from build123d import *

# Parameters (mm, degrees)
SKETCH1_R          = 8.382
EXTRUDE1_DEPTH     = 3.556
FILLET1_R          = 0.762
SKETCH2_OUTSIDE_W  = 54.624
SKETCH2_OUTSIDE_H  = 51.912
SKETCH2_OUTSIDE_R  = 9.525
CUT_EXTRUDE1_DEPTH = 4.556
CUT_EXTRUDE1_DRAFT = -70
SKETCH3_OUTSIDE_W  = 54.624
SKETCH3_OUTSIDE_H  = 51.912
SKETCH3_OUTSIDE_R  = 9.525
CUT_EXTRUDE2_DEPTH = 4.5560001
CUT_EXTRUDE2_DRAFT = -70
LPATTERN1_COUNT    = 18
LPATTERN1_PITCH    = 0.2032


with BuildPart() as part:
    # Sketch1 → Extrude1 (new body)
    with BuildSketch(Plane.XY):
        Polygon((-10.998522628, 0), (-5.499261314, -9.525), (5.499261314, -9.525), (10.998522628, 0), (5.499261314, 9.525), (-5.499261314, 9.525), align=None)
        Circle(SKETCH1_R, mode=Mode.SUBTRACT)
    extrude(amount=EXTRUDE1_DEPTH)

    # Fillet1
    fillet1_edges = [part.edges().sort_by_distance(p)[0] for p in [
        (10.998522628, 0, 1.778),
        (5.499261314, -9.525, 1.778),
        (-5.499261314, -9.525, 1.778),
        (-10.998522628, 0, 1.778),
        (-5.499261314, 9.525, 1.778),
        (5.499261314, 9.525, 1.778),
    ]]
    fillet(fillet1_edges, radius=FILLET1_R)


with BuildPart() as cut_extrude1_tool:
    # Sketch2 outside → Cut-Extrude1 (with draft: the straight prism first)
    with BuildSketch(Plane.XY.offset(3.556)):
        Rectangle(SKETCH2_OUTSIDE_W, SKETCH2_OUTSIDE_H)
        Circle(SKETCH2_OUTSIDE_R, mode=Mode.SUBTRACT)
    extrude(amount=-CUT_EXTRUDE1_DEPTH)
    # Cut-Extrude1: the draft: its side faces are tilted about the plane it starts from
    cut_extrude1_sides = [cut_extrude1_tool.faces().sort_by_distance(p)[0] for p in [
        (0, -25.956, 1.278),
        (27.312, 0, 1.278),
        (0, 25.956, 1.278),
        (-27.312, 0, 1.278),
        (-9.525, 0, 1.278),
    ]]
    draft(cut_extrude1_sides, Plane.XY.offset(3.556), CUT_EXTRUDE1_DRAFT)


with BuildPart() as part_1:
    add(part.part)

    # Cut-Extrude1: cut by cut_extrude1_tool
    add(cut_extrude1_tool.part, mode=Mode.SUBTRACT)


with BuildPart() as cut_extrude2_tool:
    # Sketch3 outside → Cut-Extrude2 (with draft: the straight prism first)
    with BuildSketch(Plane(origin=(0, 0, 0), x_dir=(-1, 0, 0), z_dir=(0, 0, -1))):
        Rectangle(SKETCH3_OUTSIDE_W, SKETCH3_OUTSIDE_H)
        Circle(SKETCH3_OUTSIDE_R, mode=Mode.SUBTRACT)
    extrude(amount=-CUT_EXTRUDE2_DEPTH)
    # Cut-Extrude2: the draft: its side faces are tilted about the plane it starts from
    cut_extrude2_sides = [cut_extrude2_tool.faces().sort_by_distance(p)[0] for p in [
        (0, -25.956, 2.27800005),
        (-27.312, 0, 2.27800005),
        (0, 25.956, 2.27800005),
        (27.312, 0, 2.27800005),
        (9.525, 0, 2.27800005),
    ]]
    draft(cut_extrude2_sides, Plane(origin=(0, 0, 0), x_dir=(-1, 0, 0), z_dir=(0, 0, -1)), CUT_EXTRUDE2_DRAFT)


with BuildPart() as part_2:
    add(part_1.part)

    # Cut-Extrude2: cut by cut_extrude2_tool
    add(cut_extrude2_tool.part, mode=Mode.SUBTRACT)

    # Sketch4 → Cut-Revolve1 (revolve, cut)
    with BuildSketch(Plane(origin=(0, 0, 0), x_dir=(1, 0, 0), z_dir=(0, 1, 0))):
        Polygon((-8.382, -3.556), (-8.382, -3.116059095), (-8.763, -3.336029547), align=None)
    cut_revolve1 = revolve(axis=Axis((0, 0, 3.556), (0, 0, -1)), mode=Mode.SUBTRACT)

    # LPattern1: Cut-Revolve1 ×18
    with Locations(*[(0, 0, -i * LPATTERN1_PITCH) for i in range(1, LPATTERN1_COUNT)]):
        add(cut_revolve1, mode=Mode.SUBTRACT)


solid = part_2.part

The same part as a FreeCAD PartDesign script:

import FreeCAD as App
import Part
import Sketcher
Q = App.Units.Quantity


def edges_at(feature, points):
    """Names of the edges that pass closest to the given points."""
    edges = feature.Shape.Edges
    near = lambda p: min(range(len(edges)), key=lambda i: edges[i].distToShape(Part.Vertex(*p))[0])
    return sorted({f"Edge{near(p) + 1}" for p in points})


def faces_at(feature, points):
    """Names of the faces that lie closest to the given points."""
    faces = feature.Shape.Faces
    near = lambda p: min(range(len(faces)), key=lambda i: faces[i].distToShape(Part.Vertex(*p))[0])
    return sorted({f"Face{near(p) + 1}" for p in points})

doc = App.newDocument("Part")
body = doc.addObject("PartDesign::Body", "Body")

# Sketch on XY plane
sketch1 = doc.addObject("Sketcher::SketchObject", "Sketch")
body.addObject(sketch1)
sketch1.AttachmentSupport = (doc.XY_Plane, [""])
sketch1.MapMode = "FlatFace"
sketch1.addGeometry([
    Part.LineSegment(App.Vector(-11, 0, 0), App.Vector(-5, -10, 0)),  # 0
    Part.LineSegment(App.Vector(-5, -10, 0), App.Vector(5, -10, 0)),  # 1
    Part.LineSegment(App.Vector(5, -10, 0), App.Vector(11, 0, 0)),  # 2
    Part.LineSegment(App.Vector(11, 0, 0), App.Vector(5, 10, 0)),  # 3
    Part.LineSegment(App.Vector(5, 10, 0), App.Vector(-5, 10, 0)),  # 4
    Part.LineSegment(App.Vector(-5, 10, 0), App.Vector(-11, 0, 0)),  # 5
    Part.Circle(App.Vector(0, 0, 0), App.Vector(0, 0, 1), 8),  # 6
], False)
sketch1.addConstraint([
    Sketcher.Constraint("Coincident", 0, 2, 1, 1),
    Sketcher.Constraint("Coincident", 1, 2, 2, 1),
    Sketcher.Constraint("Coincident", 2, 2, 3, 1),
    Sketcher.Constraint("Coincident", 3, 2, 4, 1),
    Sketcher.Constraint("Coincident", 4, 2, 5, 1),
    Sketcher.Constraint("Coincident", 5, 2, 0, 1),
    Sketcher.Constraint("Horizontal", 1),
    Sketcher.Constraint("Horizontal", 4),
    Sketcher.Constraint("Coincident", 6, 3, -1, 1),
    Sketcher.Constraint("Symmetric", 0, 2, 3, 2, -1, 1),
    Sketcher.Constraint("Symmetric", 2, 2, 5, 2, -1, 1),
    Sketcher.Constraint("PointOnObject", 2, 2, -1),
    Sketcher.Constraint("Parallel", 2, 5),
    Sketcher.Constraint("Vertical", 1, 2, 3, 2),
    Sketcher.Constraint("Diameter", 6, Q("0.66 in")),
    Sketcher.Constraint("Angle", 0, Q("-60 deg")),
    Sketcher.Constraint("DistanceY", 1, 2, 3, 2, Q("0.75 in")),
    Sketcher.Constraint("DistanceX", 1, 1, 1, 2, Q("10.998523 mm")),
])
pad1 = doc.addObject("PartDesign::Pad", "Pad")
body.addObject(pad1)
pad1.Profile = sketch1
pad1.Length = Q("0.14 in")
doc.recompute()

fillet = doc.addObject("PartDesign::Fillet", "Fillet")
body.addObject(fillet)
fillet.Base = (pad1, edges_at(pad1, [
    (10.999, 0, 1.778),
    (5.499, -9.525, 1.778),
    (-5.499, -9.525, 1.778),
    (-10.999, 0, 1.778),
    (-5.499, 9.525, 1.778),
    (5.499, 9.525, 1.778),
]))
fillet.Radius = Q("0.03 in")
body2 = doc.addObject("PartDesign::Body", "Body001")

# Sketch on XY plane
sketch2 = doc.addObject("Sketcher::SketchObject", "Sketch001")
body2.addObject(sketch2)
sketch2.AttachmentSupport = (doc.getObject("XY_Plane001"), [""])
sketch2.MapMode = "FlatFace"
sketch2.AttachmentOffset = App.Placement(App.Vector(0, 0, 0.14 * 25.4), App.Rotation())
sketch2.addGeometry([
    Part.LineSegment(App.Vector(-27, 26, 0), App.Vector(-27, -26, 0)),  # 0
    Part.LineSegment(App.Vector(-27, -26, 0), App.Vector(27, -26, 0)),  # 1
    Part.LineSegment(App.Vector(27, -26, 0), App.Vector(27, 26, 0)),  # 2
    Part.LineSegment(App.Vector(27, 26, 0), App.Vector(-27, 26, 0)),  # 3
    Part.Circle(App.Vector(0, 0, 0), App.Vector(0, 0, 1), 10),  # 4
], False)
sketch2.addConstraint([
    Sketcher.Constraint("Coincident", 0, 2, 1, 1),
    Sketcher.Constraint("Coincident", 1, 2, 2, 1),
    Sketcher.Constraint("Coincident", 2, 2, 3, 1),
    Sketcher.Constraint("Coincident", 3, 2, 0, 1),
    Sketcher.Constraint("Vertical", 0),
    Sketcher.Constraint("Horizontal", 1),
    Sketcher.Constraint("Vertical", 2),
    Sketcher.Constraint("Horizontal", 3),
    Sketcher.Constraint("Coincident", 4, 3, -1, 1),
    Sketcher.Constraint("Symmetric", 0, 2, 2, 2, -1, 1),
    Sketcher.Constraint("Diameter", 4, Q("0.75 in")),
    Sketcher.Constraint("DistanceX", 1, 1, 1, 2, Q("54.624 mm")),
    Sketcher.Constraint("DistanceY", 0, 2, 0, 1, Q("51.912 mm")),
])
pad2 = doc.addObject("PartDesign::Pad", "Pad001")
body2.addObject(pad2)
pad2.Profile = sketch2
pad2.Length = 4.556
pad2.Reversed = True
doc.recompute()

datumplane = doc.addObject("PartDesign::Plane", "DatumPlane")
body2.addObject(datumplane)
datumplane.AttachmentSupport = (doc.getObject("XY_Plane001"), [""])
datumplane.MapMode = "FlatFace"
datumplane.AttachmentOffset = App.Placement(App.Vector(0, 0, 0.14 * 25.4), App.Rotation())
draft = doc.addObject("PartDesign::Draft", "Draft")
body2.addObject(draft)
draft.Base = (pad2, faces_at(pad2, [
    (0, -25.956, 1.278),
    (27.312, 0, 1.278),
    (0, 25.956, 1.278),
    (-27.312, 0, 1.278),
    (-9.525, 0, 1.278),
]))
draft.NeutralPlane = (datumplane, [""])
draft.Angle = 70
draft.Reversed = True
doc.recompute()

boolean = doc.addObject("PartDesign::Boolean", "Boolean")
body.addObject(boolean)
boolean.Type = "Cut"
boolean.addObjects([body2])
body3 = doc.addObject("PartDesign::Body", "Body002")

# Sketch on XY plane
sketch3 = doc.addObject("Sketcher::SketchObject", "Sketch002")
body3.addObject(sketch3)
sketch3.AttachmentSupport = (doc.getObject("XY_Plane002"), [""])
sketch3.MapMode = "FlatFace"
sketch3.addGeometry([
    Part.LineSegment(App.Vector(27, 26, 0), App.Vector(27, -26, 0)),  # 0
    Part.LineSegment(App.Vector(27, -26, 0), App.Vector(-27, -26, 0)),  # 1
    Part.LineSegment(App.Vector(-27, -26, 0), App.Vector(-27, 26, 0)),  # 2
    Part.LineSegment(App.Vector(-27, 26, 0), App.Vector(27, 26, 0)),  # 3
    Part.Circle(App.Vector(0, 0, 0), App.Vector(0, 0, 1), 10),  # 4
], False)
sketch3.addConstraint([
    Sketcher.Constraint("Coincident", 0, 2, 1, 1),
    Sketcher.Constraint("Coincident", 1, 2, 2, 1),
    Sketcher.Constraint("Coincident", 2, 2, 3, 1),
    Sketcher.Constraint("Coincident", 3, 2, 0, 1),
    Sketcher.Constraint("Vertical", 0),
    Sketcher.Constraint("Horizontal", 1),
    Sketcher.Constraint("Vertical", 2),
    Sketcher.Constraint("Horizontal", 3),
    Sketcher.Constraint("Coincident", 4, 3, -1, 1),
    Sketcher.Constraint("Symmetric", 0, 2, 2, 2, -1, 1),
    Sketcher.Constraint("Diameter", 4, Q("0.75 in")),
    Sketcher.Constraint("DistanceX", 1, 2, 1, 1, Q("54.624 mm")),
    Sketcher.Constraint("DistanceY", 0, 2, 0, 1, Q("51.912 mm")),
])
pad3 = doc.addObject("PartDesign::Pad", "Pad002")
body3.addObject(pad3)
pad3.Profile = sketch3
pad3.Length = 4.556
doc.recompute()

draft2 = doc.addObject("PartDesign::Draft", "Draft001")
body3.addObject(draft2)
draft2.Base = (pad3, faces_at(pad3, [
    (0, -25.956, 2.278),
    (-27.312, 0, 2.278),
    (0, 25.956, 2.278),
    (27.312, 0, 2.278),
    (9.525, 0, 2.278),
]))
draft2.NeutralPlane = (doc.getObject("XY_Plane002"), [""])
draft2.Angle = 70
draft2.Reversed = False
doc.recompute()

boolean2 = doc.addObject("PartDesign::Boolean", "Boolean001")
body.addObject(boolean2)
boolean2.Type = "Cut"
boolean2.addObjects([body3])

# Sketch on XZ plane
sketch4 = doc.addObject("Sketcher::SketchObject", "Sketch003")
body.addObject(sketch4)
sketch4.AttachmentSupport = (doc.XZ_Plane, [""])
sketch4.MapMode = "FlatFace"
sketch4.addGeometry([
    Part.LineSegment(App.Vector(-8.38, 3.56, 0), App.Vector(-8.38, 3.12, 0)),
    Part.LineSegment(App.Vector(-8.38, 3.12, 0), App.Vector(-8.76, 3.34, 0)),
    Part.LineSegment(App.Vector(-8.76, 3.34, 0), App.Vector(-8.38, 3.56, 0)),
], False)
sketch4.addConstraint([
    Sketcher.Constraint("Coincident", 0, 2, 1, 1),
    Sketcher.Constraint("Coincident", 1, 2, 2, 1),
    Sketcher.Constraint("Coincident", 2, 2, 0, 1),
    Sketcher.Constraint("Vertical", 0),
    Sketcher.Constraint("Equal", 1, 2),
    Sketcher.Constraint("Angle", 1, Q("150 deg")),
    Sketcher.Constraint("DistanceX", 0, 2, -1, 1, Q("0.33 in")),
    Sketcher.Constraint("DistanceY", -1, 1, 2, 2, Q("0.14 in")),
    Sketcher.Constraint("DistanceX", 1, 2, -1, 1, Q("0.345 in")),
])
groove = doc.addObject("PartDesign::Groove", "Groove")
body.addObject(groove)
groove.Profile = sketch4
groove.ReferenceAxis = (sketch4, ["V_Axis"])
groove.Angle = 360
doc.recompute()

linearpattern = doc.addObject("PartDesign::LinearPattern", "LinearPattern")
body.addObject(linearpattern)
linearpattern.Originals = [groove]
linearpattern.Direction = (doc.Z_Axis, [""])
linearpattern.Mode = "offset"
linearpattern.Offset = Q("0.008 in")
linearpattern.Occurrences = 18
linearpattern.Reversed = True
body.Tip = linearpattern

doc.recompute()
